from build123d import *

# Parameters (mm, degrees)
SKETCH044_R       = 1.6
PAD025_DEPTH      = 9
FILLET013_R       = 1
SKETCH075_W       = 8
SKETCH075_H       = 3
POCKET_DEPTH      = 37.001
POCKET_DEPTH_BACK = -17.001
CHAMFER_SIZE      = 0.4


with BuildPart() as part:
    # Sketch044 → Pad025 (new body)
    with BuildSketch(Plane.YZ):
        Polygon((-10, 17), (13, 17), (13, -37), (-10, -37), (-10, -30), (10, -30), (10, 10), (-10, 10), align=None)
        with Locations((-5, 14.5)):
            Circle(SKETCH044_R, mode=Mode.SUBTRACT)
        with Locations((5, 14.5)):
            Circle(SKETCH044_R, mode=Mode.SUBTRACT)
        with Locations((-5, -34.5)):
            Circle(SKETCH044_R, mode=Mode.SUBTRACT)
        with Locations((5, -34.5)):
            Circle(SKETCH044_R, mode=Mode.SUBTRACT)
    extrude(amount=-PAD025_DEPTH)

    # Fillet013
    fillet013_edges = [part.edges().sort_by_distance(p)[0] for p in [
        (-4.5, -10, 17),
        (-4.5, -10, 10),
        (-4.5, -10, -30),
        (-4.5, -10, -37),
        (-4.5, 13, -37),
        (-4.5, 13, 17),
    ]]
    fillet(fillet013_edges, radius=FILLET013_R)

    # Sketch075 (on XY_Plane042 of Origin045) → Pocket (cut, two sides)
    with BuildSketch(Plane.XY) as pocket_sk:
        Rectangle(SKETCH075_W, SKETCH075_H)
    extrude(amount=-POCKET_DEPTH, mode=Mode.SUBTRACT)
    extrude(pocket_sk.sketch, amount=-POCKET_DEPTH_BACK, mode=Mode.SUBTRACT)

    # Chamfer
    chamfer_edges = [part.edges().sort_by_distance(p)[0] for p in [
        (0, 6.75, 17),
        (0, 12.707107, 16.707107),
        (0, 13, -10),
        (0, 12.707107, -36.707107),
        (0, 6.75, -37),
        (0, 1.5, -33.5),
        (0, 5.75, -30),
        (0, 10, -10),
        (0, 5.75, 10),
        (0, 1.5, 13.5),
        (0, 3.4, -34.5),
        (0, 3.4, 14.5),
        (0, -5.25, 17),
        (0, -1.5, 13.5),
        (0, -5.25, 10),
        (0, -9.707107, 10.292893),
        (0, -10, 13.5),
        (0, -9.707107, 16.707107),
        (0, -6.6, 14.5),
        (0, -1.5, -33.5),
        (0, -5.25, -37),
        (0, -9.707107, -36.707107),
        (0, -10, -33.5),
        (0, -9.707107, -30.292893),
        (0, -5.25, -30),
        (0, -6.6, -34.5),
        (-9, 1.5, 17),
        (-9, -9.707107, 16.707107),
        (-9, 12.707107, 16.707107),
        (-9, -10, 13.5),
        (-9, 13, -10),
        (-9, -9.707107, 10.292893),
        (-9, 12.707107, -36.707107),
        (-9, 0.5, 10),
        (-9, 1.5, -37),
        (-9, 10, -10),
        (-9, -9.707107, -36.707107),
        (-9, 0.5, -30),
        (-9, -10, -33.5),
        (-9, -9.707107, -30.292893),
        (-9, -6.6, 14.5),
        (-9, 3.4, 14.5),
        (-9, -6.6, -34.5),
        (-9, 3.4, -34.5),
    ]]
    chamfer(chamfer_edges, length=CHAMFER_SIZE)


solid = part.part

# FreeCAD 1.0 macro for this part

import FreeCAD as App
import Part
import Sketcher

V = App.Vector
Q = App.Units.Quantity


def edges_at(feature, points):
    """Names of the edges that pass closest to the given points."""
    edges = feature.Shape.Edges
    near = lambda p: min(range(len(edges)), key=lambda i: edges[i].distToShape(Part.Vertex(*p))[0])
    return sorted({f"Edge{near(p) + 1}" for p in points})


def add_polygon(sketch, points):
    """Adds a closed chain of lines whose ends are joined by coincident constraints."""
    first, n = sketch.GeometryCount, len(points)
    for a, b in zip(points, points[1:] + points[:1]):
        sketch.addGeometry(Part.LineSegment(App.Vector(*a, 0), App.Vector(*b, 0)), False)
    for i in range(n):
        sketch.addConstraint(Sketcher.Constraint("Coincident", first + i, 2, first + (i + 1) % n, 1))

doc = App.newDocument("Part")
body = doc.addObject("PartDesign::Body", "Body")

sketch1 = doc.addObject("Sketcher::SketchObject", "Sketch")
body.addObject(sketch1)
sketch1.AttachmentSupport = (doc.YZ_Plane, [""])
sketch1.MapMode = "FlatFace"
add_polygon(sketch1, [(13, 17), (-10, 17), (-10, 10), (10, 10), (10, -30), (-10, -30), (-10, -37), (13, -37)])
sketch1.addGeometry(Part.Circle(V(5, -34.5, 0), V(0, 0, 1), 1.6), False)
sketch1.addGeometry(Part.Circle(V(-5, -34.5, 0), V(0, 0, 1), 1.6), False)
sketch1.addGeometry(Part.Circle(V(5, 14.5, 0), V(0, 0, 1), 1.6), False)
sketch1.addGeometry(Part.Circle(V(-5, 14.5, 0), V(0, 0, 1), 1.6), False)
sketch1.addConstraint([
    Sketcher.Constraint("Horizontal", 0),
    Sketcher.Constraint("Vertical", 1),
    Sketcher.Constraint("Horizontal", 2),
    Sketcher.Constraint("Vertical", 3),
    Sketcher.Constraint("Horizontal", 4),
    Sketcher.Constraint("Vertical", 5),
    Sketcher.Constraint("Horizontal", 6),
    Sketcher.Constraint("Vertical", 7),
    Sketcher.Constraint("Equal", 8, 9),
    Sketcher.Constraint("Equal", 9, 10),
    Sketcher.Constraint("Equal", 10, 11),
    Sketcher.Constraint("Symmetric", 8, 3, 9, 3, -2),
    Sketcher.Constraint("Symmetric", 10, 3, 11, 3, -2),
    Sketcher.Constraint("Vertical", 8, 3, 10, 3),
    Sketcher.Constraint("Vertical", 1, 2, 4, 2),
    Sketcher.Constraint("Equal", 1, 5),
    Sketcher.Constraint("Diameter", 8, Q("3.2 mm")),
    Sketcher.Constraint("DistanceX", 0, 2, 0, 1, Q("23 mm")),
    Sketcher.Constraint("DistanceX", 2, 1, 2, 2, Q("20 mm")),
    Sketcher.Constraint("DistanceY", 1, 2, 1, 1, Q("7 mm")),
    Sketcher.Constraint("DistanceY", 3, 2, 3, 1, Q("40 mm")),
    Sketcher.Constraint("DistanceX", -1, 1, 8, 3, Q("5 mm")),
    Sketcher.Constraint("DistanceX", 0, 2, -1, 1, Q("10 mm")),
    Sketcher.Constraint("DistanceY", -1, 1, 0, 2, Q("17 mm")),
    Sketcher.Constraint("DistanceY", 8, 3, 10, 3, Q("49 mm")),
    Sketcher.Constraint("DistanceY", 8, 3, -1, 1, Q("34.5 mm")),
])
pad1 = doc.addObject("PartDesign::Pad", "Pad")
body.addObject(pad1)
pad1.Profile = sketch1
pad1.Length = 9
pad1.Reversed = True
doc.recompute()

fillet = doc.addObject("PartDesign::Fillet", "Fillet")
body.addObject(fillet)
fillet.Base = (pad1, edges_at(pad1, [
    (-4.5, -10, 17),
    (-4.5, -10, 10),
    (-4.5, -10, -30),
    (-4.5, -10, -37),
    (-4.5, 13, -37),
    (-4.5, 13, 17),
]))
fillet.Radius = 1

sketch2 = doc.addObject("Sketcher::SketchObject", "Sketch001")
body.addObject(sketch2)
sketch2.AttachmentSupport = (doc.XY_Plane, [""])
sketch2.MapMode = "FlatFace"
add_polygon(sketch2, [(-4, 1.5), (-4, -1.5), (4, -1.5), (4, 1.5)])
sketch2.addConstraint([
    Sketcher.Constraint("Vertical", 0),
    Sketcher.Constraint("Horizontal", 1),
    Sketcher.Constraint("Vertical", 2),
    Sketcher.Constraint("Horizontal", 3),
    Sketcher.Constraint("Symmetric", 0, 2, 2, 2, -1, 1),
    Sketcher.Constraint("DistanceX", 1, 1, 1, 2, Q("8 mm")),
    Sketcher.Constraint("DistanceY", 0, 2, 0, 1, Q("3 mm")),
])
pocket1 = doc.addObject("PartDesign::Pocket", "Pocket")
body.addObject(pocket1)
pocket1.Profile = sketch2
pocket1.Type = "ThroughAll"
pocket1.Midplane = True
doc.recompute()

chamfer = doc.addObject("PartDesign::Chamfer", "Chamfer")
body.addObject(chamfer)
chamfer.Base = (pocket1, edges_at(pocket1, [
    (0, 6.75, 17),
    (0, 12.707, 16.707),
    (0, 13, -10),
    (0, 12.707, -36.707),
    (0, 6.75, -37),
    (0, 1.5, -33.5),
    (0, 5.75, -30),
    (0, 10, -10),
    (0, 5.75, 10),
    (0, 1.5, 13.5),
    (0, 3.4, -34.5),
    (0, 3.4, 14.5),
    (0, -5.25, 17),
    (0, -1.5, 13.5),
    (0, -5.25, 10),
    (0, -9.707, 10.293),
    (0, -10, 13.5),
    (0, -9.707, 16.707),
    (0, -6.6, 14.5),
    (0, -1.5, -33.5),
    (0, -5.25, -37),
    (0, -9.707, -36.707),
    (0, -10, -33.5),
    (0, -9.707, -30.293),
    (0, -5.25, -30),
    (0, -6.6, -34.5),
    (-9, 1.5, 17),
    (-9, -9.707, 16.707),
    (-9, 12.707, 16.707),
    (-9, -10, 13.5),
    (-9, 13, -10),
    (-9, -9.707, 10.293),
    (-9, 12.707, -36.707),
    (-9, 0.5, 10),
    (-9, 1.5, -37),
    (-9, 10, -10),
    (-9, -9.707, -36.707),
    (-9, 0.5, -30),
    (-9, -10, -33.5),
    (-9, -9.707, -30.293),
    (-9, -6.6, 14.5),
    (-9, 3.4, 14.5),
    (-9, -6.6, -34.5),
    (-9, 3.4, -34.5),
]))
chamfer.Size = 0.4

doc.recompute()
